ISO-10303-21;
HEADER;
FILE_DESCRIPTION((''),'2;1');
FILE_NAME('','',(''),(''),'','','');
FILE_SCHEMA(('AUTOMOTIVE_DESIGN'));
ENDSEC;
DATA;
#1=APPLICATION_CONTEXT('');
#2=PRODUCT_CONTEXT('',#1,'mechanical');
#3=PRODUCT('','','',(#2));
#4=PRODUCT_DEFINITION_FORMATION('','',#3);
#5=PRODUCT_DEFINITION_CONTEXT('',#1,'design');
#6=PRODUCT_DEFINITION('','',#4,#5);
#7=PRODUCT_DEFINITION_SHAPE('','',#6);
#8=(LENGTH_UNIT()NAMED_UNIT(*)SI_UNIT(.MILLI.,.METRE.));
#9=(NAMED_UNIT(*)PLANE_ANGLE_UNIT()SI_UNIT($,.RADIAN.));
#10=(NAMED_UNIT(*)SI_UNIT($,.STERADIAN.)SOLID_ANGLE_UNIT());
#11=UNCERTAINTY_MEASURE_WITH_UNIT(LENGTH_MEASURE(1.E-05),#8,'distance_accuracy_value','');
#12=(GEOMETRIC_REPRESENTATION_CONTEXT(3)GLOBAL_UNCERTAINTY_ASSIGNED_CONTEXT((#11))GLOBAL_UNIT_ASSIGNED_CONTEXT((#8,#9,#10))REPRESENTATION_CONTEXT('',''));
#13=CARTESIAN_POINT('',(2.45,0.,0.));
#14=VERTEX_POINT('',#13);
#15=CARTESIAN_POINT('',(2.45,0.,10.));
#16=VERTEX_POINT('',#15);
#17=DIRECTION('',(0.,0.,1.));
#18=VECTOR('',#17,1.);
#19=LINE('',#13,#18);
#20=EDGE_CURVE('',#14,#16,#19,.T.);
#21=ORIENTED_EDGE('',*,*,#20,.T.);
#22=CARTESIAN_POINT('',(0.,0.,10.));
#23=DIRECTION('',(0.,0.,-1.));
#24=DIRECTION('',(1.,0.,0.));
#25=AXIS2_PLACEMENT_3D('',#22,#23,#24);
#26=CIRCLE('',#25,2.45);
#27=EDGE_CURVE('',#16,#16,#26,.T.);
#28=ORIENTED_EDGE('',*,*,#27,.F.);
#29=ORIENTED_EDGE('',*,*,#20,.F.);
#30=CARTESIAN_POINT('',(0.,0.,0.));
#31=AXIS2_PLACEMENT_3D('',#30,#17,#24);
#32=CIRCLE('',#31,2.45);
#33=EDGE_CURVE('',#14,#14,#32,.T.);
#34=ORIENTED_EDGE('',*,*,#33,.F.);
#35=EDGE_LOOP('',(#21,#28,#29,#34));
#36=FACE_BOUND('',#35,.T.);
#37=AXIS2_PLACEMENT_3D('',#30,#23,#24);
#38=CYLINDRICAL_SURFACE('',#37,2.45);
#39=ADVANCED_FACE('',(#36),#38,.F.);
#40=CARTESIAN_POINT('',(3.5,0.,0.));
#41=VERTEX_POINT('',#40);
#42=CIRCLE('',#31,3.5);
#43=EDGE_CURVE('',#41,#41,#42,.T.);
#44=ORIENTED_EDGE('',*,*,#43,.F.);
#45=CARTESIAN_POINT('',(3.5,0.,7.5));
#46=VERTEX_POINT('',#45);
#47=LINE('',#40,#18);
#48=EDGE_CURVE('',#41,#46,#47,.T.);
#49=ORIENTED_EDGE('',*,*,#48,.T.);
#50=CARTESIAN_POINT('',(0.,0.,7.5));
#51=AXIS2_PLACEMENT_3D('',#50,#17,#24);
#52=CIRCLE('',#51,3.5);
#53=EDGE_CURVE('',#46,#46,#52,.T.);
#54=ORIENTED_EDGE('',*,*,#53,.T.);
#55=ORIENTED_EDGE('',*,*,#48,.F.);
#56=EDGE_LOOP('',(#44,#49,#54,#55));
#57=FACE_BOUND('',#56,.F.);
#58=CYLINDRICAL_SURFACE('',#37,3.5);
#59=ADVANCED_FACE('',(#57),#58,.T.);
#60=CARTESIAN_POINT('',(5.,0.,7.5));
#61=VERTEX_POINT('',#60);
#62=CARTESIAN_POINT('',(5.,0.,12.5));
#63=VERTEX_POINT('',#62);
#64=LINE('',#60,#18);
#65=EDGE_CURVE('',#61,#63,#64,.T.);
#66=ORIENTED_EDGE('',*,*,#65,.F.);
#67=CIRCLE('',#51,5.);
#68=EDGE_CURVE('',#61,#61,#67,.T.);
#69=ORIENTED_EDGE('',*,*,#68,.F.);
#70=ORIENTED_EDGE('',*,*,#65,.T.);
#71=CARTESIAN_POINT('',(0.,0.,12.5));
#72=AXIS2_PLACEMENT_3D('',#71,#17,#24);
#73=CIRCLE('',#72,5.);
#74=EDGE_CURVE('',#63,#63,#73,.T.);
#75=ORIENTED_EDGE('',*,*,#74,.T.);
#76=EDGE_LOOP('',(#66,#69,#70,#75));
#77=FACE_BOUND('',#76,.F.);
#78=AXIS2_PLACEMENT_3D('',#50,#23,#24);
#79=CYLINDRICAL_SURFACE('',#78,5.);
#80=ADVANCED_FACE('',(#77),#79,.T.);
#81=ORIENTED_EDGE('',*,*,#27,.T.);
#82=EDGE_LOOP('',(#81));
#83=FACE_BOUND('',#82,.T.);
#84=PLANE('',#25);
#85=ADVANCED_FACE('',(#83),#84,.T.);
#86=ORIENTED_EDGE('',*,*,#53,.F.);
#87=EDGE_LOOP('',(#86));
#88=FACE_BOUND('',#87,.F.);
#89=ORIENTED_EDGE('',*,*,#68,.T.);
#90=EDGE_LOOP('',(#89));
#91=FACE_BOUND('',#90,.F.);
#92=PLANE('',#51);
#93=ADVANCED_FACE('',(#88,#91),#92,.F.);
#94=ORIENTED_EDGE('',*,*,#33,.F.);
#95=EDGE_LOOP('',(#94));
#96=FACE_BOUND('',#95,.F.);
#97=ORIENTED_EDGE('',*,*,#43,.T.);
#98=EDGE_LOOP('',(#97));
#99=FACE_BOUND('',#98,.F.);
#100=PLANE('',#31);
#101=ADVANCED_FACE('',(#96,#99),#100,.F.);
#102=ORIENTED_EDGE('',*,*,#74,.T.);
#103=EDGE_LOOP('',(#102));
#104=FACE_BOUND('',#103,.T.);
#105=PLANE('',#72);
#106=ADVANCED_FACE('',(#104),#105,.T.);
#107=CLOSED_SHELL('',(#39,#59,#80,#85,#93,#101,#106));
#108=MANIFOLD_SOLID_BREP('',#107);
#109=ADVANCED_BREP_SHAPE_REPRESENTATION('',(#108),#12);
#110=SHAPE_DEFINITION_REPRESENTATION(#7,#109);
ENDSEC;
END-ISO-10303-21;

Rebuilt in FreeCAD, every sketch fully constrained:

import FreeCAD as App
import Part
import Sketcher
from FreeCAD import Vector
Q = App.Units.Quantity

doc = App.newDocument("Part")
body = doc.addObject("PartDesign::Body", "Body")

sketch1 = body.newObject("Sketcher::SketchObject", "Sketch")
sketch1.AttachmentSupport = (doc.getObject("XY_Plane"), [""])
sketch1.MapMode = "FlatFace"
sketch1.addGeometry([
    Part.Circle(Vector(0, 0, 0), Vector(0, 0, 1), 3.5),
    Part.Circle(Vector(0, 0, 0), Vector(0, 0, 1), 2.5),
], False)
sketch1.addConstraint([
    Sketcher.Constraint("Coincident", 0, 3, -1, 1),
    Sketcher.Constraint("Coincident", 1, 3, -1, 1),
    Sketcher.Constraint("Diameter", 0, Q("7 mm")),
    Sketcher.Constraint("Diameter", 1, Q("4.9 mm")),
])
pad1 = body.newObject("PartDesign::Pad", "Pad")
pad1.Profile = sketch1
pad1.Length = 7.5

sketch2 = body.newObject("Sketcher::SketchObject", "Sketch001")
sketch2.AttachmentSupport = (doc.getObject("XY_Plane"), [""])
sketch2.MapMode = "FlatFace"
sketch2.AttachmentOffset = App.Placement(Vector(0, 0, 7.5), App.Rotation())
sketch2.addGeometry(Part.Circle(Vector(0, 0, 0), Vector(0, 0, 1), 5), False)
sketch2.addConstraint([
    Sketcher.Constraint("Coincident", 0, 3, -1, 1),
    Sketcher.Constraint("Diameter", 0, Q("10 mm")),
])
pad2 = body.newObject("PartDesign::Pad", "Pad001")
pad2.Profile = sketch2
pad2.Length = 5

sketch3 = body.newObject("Sketcher::SketchObject", "Sketch002")
sketch3.AttachmentSupport = (doc.getObject("XY_Plane"), [""])
sketch3.MapMode = "FlatFace"
sketch3.AttachmentOffset = App.Placement(Vector(0, 0, 7.5), App.Rotation())
sketch3.addGeometry(Part.Circle(Vector(0, 0, 0), Vector(0, 0, 1), 2.5), False)
sketch3.addConstraint([
    Sketcher.Constraint("Coincident", 0, 3, -1, 1),
    Sketcher.Constraint("Diameter", 0, Q("4.9 mm")),
])
pocket1 = body.newObject("PartDesign::Pocket", "Pocket")
pocket1.Profile = sketch3
pocket1.Length = 2.5
pocket1.Reversed = True

doc.recompute()
